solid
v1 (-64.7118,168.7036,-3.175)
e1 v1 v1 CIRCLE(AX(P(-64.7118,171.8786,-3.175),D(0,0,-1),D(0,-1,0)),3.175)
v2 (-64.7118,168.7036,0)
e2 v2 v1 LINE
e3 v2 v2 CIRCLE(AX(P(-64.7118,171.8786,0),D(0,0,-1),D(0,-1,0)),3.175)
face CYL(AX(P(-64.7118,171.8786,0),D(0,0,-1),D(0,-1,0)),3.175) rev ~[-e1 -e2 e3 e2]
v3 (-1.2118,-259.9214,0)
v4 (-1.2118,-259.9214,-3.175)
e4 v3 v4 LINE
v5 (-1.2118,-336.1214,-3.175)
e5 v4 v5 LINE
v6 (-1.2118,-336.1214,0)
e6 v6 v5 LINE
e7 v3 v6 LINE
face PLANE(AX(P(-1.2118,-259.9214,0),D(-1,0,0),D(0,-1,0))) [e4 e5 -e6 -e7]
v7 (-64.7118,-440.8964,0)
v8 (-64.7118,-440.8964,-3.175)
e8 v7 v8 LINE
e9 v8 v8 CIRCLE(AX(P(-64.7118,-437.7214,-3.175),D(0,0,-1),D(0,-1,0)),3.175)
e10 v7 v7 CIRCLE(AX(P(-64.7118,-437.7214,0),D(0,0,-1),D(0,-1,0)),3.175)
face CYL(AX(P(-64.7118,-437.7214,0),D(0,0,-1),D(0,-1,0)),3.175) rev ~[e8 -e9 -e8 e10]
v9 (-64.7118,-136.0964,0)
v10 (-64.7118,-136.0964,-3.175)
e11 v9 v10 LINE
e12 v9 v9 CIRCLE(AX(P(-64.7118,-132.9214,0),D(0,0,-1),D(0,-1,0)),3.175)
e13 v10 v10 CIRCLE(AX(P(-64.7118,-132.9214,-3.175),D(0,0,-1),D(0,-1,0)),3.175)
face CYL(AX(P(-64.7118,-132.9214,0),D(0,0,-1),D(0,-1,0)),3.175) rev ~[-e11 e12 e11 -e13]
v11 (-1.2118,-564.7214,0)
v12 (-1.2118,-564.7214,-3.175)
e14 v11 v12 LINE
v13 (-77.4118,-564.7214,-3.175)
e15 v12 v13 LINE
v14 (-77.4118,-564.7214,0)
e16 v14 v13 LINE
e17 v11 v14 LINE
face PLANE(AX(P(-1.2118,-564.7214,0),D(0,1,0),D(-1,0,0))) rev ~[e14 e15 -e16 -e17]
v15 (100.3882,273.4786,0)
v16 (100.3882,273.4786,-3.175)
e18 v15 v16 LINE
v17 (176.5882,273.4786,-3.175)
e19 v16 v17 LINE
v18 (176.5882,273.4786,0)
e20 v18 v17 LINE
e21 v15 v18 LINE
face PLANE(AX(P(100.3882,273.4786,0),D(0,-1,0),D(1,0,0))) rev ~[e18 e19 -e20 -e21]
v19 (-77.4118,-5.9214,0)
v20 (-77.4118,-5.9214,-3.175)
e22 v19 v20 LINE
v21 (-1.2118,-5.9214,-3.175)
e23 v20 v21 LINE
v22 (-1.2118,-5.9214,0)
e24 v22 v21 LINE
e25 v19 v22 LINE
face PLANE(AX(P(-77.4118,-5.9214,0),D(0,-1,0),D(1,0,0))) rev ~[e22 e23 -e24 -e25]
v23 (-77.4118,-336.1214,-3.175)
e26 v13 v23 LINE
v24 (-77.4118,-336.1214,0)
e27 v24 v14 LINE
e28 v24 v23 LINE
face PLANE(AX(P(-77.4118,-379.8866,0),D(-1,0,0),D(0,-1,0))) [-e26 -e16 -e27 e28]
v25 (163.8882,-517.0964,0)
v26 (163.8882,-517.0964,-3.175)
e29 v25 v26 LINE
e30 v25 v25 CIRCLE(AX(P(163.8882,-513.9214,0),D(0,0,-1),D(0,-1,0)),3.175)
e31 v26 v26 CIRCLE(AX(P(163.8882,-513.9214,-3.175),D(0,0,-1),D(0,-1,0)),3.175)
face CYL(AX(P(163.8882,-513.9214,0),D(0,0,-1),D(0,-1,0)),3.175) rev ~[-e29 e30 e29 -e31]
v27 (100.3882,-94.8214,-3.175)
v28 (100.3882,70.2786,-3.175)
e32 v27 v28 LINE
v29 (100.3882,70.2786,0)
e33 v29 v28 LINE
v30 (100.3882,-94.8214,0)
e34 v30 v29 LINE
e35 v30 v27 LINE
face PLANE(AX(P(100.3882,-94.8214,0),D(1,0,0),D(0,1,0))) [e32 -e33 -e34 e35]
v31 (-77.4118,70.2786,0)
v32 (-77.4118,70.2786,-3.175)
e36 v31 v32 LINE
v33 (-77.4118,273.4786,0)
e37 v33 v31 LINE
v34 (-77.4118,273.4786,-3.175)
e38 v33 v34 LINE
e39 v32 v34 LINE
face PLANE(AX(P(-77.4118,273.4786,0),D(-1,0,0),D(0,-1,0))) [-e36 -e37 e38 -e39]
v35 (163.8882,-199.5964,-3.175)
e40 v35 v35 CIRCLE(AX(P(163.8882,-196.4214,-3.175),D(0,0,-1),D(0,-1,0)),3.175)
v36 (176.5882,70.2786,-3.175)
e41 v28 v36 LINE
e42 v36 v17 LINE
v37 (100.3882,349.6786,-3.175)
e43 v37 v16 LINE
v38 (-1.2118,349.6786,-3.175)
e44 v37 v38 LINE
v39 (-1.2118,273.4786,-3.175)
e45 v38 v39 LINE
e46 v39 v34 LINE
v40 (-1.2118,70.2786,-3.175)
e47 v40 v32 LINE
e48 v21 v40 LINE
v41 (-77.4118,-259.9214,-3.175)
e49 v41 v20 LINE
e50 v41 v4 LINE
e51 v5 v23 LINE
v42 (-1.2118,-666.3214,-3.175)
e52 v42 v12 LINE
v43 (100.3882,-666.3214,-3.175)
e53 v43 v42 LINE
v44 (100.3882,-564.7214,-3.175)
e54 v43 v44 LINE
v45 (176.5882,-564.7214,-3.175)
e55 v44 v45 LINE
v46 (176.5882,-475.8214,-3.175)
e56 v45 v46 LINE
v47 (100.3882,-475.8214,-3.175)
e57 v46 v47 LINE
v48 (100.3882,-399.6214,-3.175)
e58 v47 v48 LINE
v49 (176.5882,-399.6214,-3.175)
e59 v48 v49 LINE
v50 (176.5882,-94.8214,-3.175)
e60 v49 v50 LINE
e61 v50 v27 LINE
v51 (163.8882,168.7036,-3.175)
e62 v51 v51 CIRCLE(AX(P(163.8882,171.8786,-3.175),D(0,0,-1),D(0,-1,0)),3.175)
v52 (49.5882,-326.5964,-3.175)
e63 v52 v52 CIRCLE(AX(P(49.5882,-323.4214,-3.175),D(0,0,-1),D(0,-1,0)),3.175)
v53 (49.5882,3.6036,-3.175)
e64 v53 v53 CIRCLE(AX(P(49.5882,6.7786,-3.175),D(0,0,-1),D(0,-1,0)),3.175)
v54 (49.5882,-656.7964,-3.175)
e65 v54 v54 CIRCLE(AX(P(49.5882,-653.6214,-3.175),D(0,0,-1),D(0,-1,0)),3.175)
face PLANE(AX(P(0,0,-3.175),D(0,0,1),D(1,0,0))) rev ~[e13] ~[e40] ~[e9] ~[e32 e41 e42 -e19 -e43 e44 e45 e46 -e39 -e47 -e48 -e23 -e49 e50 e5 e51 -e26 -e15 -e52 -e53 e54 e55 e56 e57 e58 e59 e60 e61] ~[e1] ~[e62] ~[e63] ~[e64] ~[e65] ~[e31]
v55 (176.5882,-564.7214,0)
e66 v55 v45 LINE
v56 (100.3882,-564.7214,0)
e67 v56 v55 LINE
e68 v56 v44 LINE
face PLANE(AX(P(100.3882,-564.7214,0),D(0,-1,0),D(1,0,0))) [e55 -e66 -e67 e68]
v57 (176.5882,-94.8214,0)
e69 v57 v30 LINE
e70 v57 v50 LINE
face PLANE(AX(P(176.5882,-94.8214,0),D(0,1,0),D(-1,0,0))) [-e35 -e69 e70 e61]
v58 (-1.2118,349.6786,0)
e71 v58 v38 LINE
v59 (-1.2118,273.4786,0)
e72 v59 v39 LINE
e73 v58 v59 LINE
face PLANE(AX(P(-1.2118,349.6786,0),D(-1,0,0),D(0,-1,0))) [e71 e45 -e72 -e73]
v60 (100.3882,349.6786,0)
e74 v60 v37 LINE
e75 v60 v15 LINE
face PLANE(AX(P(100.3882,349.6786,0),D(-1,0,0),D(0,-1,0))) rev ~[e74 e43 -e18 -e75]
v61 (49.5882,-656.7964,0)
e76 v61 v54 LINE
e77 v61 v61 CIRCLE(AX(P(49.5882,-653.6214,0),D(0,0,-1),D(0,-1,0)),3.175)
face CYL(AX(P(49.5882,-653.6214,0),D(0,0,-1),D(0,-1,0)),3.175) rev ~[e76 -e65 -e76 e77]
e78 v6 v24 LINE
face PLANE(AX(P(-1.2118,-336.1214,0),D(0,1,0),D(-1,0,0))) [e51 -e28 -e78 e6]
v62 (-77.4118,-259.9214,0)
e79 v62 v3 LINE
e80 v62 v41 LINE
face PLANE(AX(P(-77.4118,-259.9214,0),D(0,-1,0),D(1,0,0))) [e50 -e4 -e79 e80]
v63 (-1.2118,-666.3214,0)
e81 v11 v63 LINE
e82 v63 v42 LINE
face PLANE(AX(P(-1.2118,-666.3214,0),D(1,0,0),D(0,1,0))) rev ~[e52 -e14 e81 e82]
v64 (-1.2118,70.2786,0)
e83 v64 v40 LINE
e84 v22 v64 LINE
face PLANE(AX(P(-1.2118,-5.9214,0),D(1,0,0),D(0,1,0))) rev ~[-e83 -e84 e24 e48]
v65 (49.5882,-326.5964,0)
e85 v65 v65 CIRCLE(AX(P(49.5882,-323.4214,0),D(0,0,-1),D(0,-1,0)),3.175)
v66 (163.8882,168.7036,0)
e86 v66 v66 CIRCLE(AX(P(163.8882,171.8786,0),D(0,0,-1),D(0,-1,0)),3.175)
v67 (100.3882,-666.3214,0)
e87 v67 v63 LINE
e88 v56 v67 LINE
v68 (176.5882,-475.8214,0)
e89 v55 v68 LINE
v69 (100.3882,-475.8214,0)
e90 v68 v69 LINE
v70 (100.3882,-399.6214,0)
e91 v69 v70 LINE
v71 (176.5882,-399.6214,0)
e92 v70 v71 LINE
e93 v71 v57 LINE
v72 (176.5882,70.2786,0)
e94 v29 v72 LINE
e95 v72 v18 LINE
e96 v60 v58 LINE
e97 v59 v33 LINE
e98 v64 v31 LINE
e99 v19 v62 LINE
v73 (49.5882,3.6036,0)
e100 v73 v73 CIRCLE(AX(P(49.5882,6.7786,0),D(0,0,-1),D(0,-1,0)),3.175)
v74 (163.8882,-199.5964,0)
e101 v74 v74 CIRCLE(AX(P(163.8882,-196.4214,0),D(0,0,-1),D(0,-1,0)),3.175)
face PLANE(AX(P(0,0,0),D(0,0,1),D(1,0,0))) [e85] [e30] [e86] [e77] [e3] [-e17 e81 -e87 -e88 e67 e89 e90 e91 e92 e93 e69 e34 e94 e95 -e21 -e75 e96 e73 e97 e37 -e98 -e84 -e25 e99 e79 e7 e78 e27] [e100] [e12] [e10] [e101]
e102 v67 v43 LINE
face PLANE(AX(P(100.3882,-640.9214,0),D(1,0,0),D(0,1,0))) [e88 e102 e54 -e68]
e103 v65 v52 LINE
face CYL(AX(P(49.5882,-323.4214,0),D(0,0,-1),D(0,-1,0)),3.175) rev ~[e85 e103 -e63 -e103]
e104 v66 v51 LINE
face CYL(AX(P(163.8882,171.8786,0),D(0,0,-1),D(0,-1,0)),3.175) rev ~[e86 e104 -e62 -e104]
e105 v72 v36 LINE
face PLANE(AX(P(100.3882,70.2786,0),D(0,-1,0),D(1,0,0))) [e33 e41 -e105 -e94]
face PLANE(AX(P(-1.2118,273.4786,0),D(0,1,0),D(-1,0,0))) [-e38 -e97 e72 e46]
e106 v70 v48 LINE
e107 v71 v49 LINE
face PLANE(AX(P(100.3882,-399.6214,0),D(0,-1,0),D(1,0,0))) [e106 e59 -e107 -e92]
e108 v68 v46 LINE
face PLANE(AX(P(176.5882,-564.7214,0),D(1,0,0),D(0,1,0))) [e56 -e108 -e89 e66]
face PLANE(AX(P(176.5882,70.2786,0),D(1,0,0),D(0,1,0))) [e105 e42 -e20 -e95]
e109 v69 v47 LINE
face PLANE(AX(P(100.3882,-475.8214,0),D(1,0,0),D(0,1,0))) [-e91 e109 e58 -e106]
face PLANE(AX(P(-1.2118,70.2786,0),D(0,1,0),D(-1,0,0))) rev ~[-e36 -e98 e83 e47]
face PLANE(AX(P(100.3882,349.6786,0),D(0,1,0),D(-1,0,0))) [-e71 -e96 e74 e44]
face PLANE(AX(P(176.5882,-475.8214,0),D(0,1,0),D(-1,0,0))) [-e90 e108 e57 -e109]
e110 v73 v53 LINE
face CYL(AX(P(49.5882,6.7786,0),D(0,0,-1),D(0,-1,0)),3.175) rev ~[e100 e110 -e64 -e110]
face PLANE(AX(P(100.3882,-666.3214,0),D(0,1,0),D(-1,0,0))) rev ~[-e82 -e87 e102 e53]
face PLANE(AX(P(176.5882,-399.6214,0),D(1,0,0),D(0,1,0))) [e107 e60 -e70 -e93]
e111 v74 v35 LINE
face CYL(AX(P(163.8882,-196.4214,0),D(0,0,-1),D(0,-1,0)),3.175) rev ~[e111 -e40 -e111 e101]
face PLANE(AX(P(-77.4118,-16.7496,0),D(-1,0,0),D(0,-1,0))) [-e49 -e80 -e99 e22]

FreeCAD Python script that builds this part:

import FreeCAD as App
import Part
import Sketcher

V = App.Vector
Q = App.Units.Quantity


def add_polygon(sketch, points):
    """Adds a closed chain of lines whose ends are joined by coincident constraints."""
    first, n = sketch.GeometryCount, len(points)
    for a, b in zip(points, points[1:] + points[:1]):
        sketch.addGeometry(Part.LineSegment(App.Vector(*a, 0), App.Vector(*b, 0)), False)
    for i in range(n):
        sketch.addConstraint(Sketcher.Constraint("Coincident", first + i, 2, first + (i + 1) % n, 1))

doc = App.newDocument("Part")
params = doc.addObject("Spreadsheet::Sheet", "Params")
for row, (alias, value) in enumerate([
    ("sketch1_width", "3 in"),
    ("sketch1_width2", "4 in"),
    ("sketch1_height", "12 in"),
    ("sketch1_height2", "8 in"),
    ("sketch1_height3", "10 in"),
    ("pad1_length", "0.125 in"),
    ("sketch2_diameter", "0.25 in"),
    ("hole_diameter", "0.25 in"),
    ("hole_depth", "1 in"),
], start=1):
    params.set(f"A{row}", alias)
    params.set(f"B{row}", "=" + value)
    params.setAlias(f"B{row}", alias)

body = doc.addObject("PartDesign::Body", "Body")

# Sketch on XY plane
sketch1 = body.newObject("Sketcher::SketchObject", "Sketch")
sketch1.AttachmentSupport = (doc.getObject("XY_Plane"), [""])
sketch1.MapMode = "FlatFace"
add_polygon(sketch1, [(100, -565), (177, -565), (177, -476), (100, -476), (100, -400), (177, -400), (177, -95), (100, -95), (100, 70), (177, 70), (177, 273), (100, 273), (100, 350), (-1, 350), (-1, 273), (-77, 273), (-77, 70), (-1, 70), (-1, -6), (-77, -6), (-77, -260), (-1, -260), (-1, -336), (-77, -336), (-77, -565), (-1, -565), (-1, -666), (100, -666)])  # lines 0-27
sketch1.addConstraint([
    Sketcher.Constraint("Horizontal", 0),
    Sketcher.Constraint("Vertical", 1),
    Sketcher.Constraint("Horizontal", 2),
    Sketcher.Constraint("Vertical", 3),
    Sketcher.Constraint("Horizontal", 4),
    Sketcher.Constraint("Vertical", 5),
    Sketcher.Constraint("Horizontal", 6),
    Sketcher.Constraint("Vertical", 7),
    Sketcher.Constraint("Horizontal", 8),
    Sketcher.Constraint("Vertical", 9),
    Sketcher.Constraint("Horizontal", 10),
    Sketcher.Constraint("Vertical", 11),
    Sketcher.Constraint("Horizontal", 12),
    Sketcher.Constraint("Vertical", 13),
    Sketcher.Constraint("Horizontal", 14),
    Sketcher.Constraint("Vertical", 15),
    Sketcher.Constraint("Horizontal", 16),
    Sketcher.Constraint("Vertical", 17),
    Sketcher.Constraint("Horizontal", 18),
    Sketcher.Constraint("Vertical", 19),
    Sketcher.Constraint("Horizontal", 20),
    Sketcher.Constraint("Vertical", 21),
    Sketcher.Constraint("Horizontal", 22),
    Sketcher.Constraint("Vertical", 23),
    Sketcher.Constraint("Horizontal", 24),
    Sketcher.Constraint("Vertical", 25),
    Sketcher.Constraint("Horizontal", 26),
    Sketcher.Constraint("Vertical", 27),
    Sketcher.Constraint("Horizontal", 10, 2, 13, 2),
    Sketcher.Constraint("Horizontal", 8, 2, 15, 2),
    Sketcher.Constraint("Horizontal", 0, 2, 23, 2),
    Sketcher.Constraint("Vertical", 1, 2, 4, 2),
    Sketcher.Constraint("Vertical", 3, 2, 6, 2),
    Sketcher.Constraint("Vertical", 5, 2, 8, 2),
    Sketcher.Constraint("Vertical", 7, 2, 10, 2),
    Sketcher.Constraint("Vertical", 13, 2, 16, 2),
    Sketcher.Constraint("Vertical", 15, 2, 18, 2),
    Sketcher.Constraint("Vertical", 17, 2, 20, 2),
    Sketcher.Constraint("Vertical", 19, 2, 22, 2),
    Sketcher.Constraint("Vertical", 21, 2, 24, 2),
    Sketcher.Constraint("Vertical", 11, 2, 26, 2),
    Sketcher.Constraint("Equal", 10, 14),
    Sketcher.Constraint("Equal", 24, 3),
    Sketcher.Constraint("Equal", 3, 11),
    Sketcher.Constraint("Equal", 13, 17),
    Sketcher.Constraint("Equal", 17, 21),
    Sketcher.Constraint("Equal", 26, 25),
    Sketcher.Constraint("DistanceX", 0, 1, 0, 2, Q("3 in")),
    Sketcher.Constraint("DistanceX", 12, 2, 12, 1, Q("4 in")),
    Sketcher.Constraint("DistanceY", 5, 1, 5, 2, Q("12 in")),
    Sketcher.Constraint("DistanceY", 9, 1, 9, 2, Q("8 in")),
    Sketcher.Constraint("DistanceY", 19, 2, 19, 1, Q("10 in")),
    Sketcher.Constraint("DistanceY", 1, 1, 1, 2, Q("3.5 in")),
    Sketcher.Constraint("DistanceY", 6, 2, 17, 2, Q("3.5 in")),
    Sketcher.Constraint("DistanceX", -1, 1, 0, 2, Q("6.9523 in")),
    Sketcher.Constraint("DistanceY", 0, 2, -1, 1, 564.7214),
])
sketch1.setExpression("Constraints[75]", "Params.sketch1_width")
sketch1.setExpression("Constraints[76]", "Params.sketch1_width2")
sketch1.setExpression("Constraints[77]", "Params.sketch1_height")
sketch1.setExpression("Constraints[78]", "Params.sketch1_height2")
sketch1.setExpression("Constraints[79]", "Params.sketch1_height3")
pad1 = body.newObject("PartDesign::Pad", "Pad")
pad1.Profile = sketch1
pad1.setExpression("Length", "Params.pad1_length")
pad1.Reversed = True

# Sketch on XY plane
sketch2 = body.newObject("Sketcher::SketchObject", "Sketch001")
sketch2.AttachmentSupport = (doc.getObject("XY_Plane"), [""])
sketch2.MapMode = "FlatFace"
sketch2.addGeometry([
    Part.Circle(V(49.6, -323.4, 0), V(0, 0, 1), 3.2),  # 0
    Part.Circle(V(-64.7, -437.7, 0), V(0, 0, 1), 3.2),  # 1
    Part.Circle(V(-64.7, -132.9, 0), V(0, 0, 1), 3.2),  # 2
    Part.Circle(V(163.9, 171.9, 0), V(0, 0, 1), 3.2),  # 3
    Part.Circle(V(-64.7, 171.9, 0), V(0, 0, 1), 3.2),  # 4
    Part.Circle(V(163.9, -196.4, 0), V(0, 0, 1), 3.2),  # 5
    Part.Circle(V(163.9, -513.9, 0), V(0, 0, 1), 3.2),  # 6
    Part.Circle(V(49.6, -653.6, 0), V(0, 0, 1), 3.2),  # 7
    Part.Circle(V(49.6, 6.8, 0), V(0, 0, 1), 3.2),  # 8
], False)
sketch2.addConstraint([
    Sketcher.Constraint("Equal", 0, 1),
    Sketcher.Constraint("Equal", 1, 2),
    Sketcher.Constraint("Equal", 2, 3),
    Sketcher.Constraint("Equal", 3, 4),
    Sketcher.Constraint("Equal", 4, 5),
    Sketcher.Constraint("Equal", 5, 6),
    Sketcher.Constraint("Equal", 6, 7),
    Sketcher.Constraint("Equal", 7, 8),
    Sketcher.Constraint("Horizontal", 3, 3, 4, 3),
    Sketcher.Constraint("Vertical", 1, 3, 2, 3),
    Sketcher.Constraint("Vertical", 2, 3, 4, 3),
    Sketcher.Constraint("Vertical", 3, 3, 5, 3),
    Sketcher.Constraint("Vertical", 5, 3, 6, 3),
    Sketcher.Constraint("Vertical", 0, 3, 7, 3),
    Sketcher.Constraint("Vertical", 7, 3, 8, 3),
    Sketcher.Constraint("Diameter", 0, Q("0.25 in")),
    Sketcher.Constraint("DistanceY", 1, 3, 2, 3, Q("12 in")),
    Sketcher.Constraint("DistanceX", 2, 3, 3, 3, Q("9 in")),
    Sketcher.Constraint("DistanceY", 2, 3, 3, 3, Q("12 in")),
    Sketcher.Constraint("DistanceY", 0, 3, 5, 3, Q("5 in")),
    Sketcher.Constraint("DistanceY", 6, 3, 1, 3, Q("3 in")),
    Sketcher.Constraint("DistanceY", 7, 3, 0, 3, Q("13 in")),
    Sketcher.Constraint("DistanceY", 5, 3, 8, 3, Q("8 in")),
    Sketcher.Constraint("DistanceX", 1, 3, 0, 3, Q("4.5 in")),
    Sketcher.Constraint("DistanceY", 1, 3, 0, 3, Q("4.5 in")),
    Sketcher.Constraint("DistanceX", -1, 1, 0, 3, Q("1.9523 in")),
    Sketcher.Constraint("DistanceY", 0, 3, -1, 1, 323.4214),
])
sketch2.setExpression("Constraints[15]", "Params.sketch2_diameter")
doc.recompute()
hole = body.newObject("PartDesign::Hole", "Hole")
hole.Profile = sketch2
hole.ThreadType = "None"
hole.setExpression("Diameter", "Params.hole_diameter")
hole.DepthType = "Dimension"
hole.setExpression("Depth", "Params.hole_depth")
hole.DrillPoint = "Angled"
hole.DrillPointAngle = 118

doc.recompute()
